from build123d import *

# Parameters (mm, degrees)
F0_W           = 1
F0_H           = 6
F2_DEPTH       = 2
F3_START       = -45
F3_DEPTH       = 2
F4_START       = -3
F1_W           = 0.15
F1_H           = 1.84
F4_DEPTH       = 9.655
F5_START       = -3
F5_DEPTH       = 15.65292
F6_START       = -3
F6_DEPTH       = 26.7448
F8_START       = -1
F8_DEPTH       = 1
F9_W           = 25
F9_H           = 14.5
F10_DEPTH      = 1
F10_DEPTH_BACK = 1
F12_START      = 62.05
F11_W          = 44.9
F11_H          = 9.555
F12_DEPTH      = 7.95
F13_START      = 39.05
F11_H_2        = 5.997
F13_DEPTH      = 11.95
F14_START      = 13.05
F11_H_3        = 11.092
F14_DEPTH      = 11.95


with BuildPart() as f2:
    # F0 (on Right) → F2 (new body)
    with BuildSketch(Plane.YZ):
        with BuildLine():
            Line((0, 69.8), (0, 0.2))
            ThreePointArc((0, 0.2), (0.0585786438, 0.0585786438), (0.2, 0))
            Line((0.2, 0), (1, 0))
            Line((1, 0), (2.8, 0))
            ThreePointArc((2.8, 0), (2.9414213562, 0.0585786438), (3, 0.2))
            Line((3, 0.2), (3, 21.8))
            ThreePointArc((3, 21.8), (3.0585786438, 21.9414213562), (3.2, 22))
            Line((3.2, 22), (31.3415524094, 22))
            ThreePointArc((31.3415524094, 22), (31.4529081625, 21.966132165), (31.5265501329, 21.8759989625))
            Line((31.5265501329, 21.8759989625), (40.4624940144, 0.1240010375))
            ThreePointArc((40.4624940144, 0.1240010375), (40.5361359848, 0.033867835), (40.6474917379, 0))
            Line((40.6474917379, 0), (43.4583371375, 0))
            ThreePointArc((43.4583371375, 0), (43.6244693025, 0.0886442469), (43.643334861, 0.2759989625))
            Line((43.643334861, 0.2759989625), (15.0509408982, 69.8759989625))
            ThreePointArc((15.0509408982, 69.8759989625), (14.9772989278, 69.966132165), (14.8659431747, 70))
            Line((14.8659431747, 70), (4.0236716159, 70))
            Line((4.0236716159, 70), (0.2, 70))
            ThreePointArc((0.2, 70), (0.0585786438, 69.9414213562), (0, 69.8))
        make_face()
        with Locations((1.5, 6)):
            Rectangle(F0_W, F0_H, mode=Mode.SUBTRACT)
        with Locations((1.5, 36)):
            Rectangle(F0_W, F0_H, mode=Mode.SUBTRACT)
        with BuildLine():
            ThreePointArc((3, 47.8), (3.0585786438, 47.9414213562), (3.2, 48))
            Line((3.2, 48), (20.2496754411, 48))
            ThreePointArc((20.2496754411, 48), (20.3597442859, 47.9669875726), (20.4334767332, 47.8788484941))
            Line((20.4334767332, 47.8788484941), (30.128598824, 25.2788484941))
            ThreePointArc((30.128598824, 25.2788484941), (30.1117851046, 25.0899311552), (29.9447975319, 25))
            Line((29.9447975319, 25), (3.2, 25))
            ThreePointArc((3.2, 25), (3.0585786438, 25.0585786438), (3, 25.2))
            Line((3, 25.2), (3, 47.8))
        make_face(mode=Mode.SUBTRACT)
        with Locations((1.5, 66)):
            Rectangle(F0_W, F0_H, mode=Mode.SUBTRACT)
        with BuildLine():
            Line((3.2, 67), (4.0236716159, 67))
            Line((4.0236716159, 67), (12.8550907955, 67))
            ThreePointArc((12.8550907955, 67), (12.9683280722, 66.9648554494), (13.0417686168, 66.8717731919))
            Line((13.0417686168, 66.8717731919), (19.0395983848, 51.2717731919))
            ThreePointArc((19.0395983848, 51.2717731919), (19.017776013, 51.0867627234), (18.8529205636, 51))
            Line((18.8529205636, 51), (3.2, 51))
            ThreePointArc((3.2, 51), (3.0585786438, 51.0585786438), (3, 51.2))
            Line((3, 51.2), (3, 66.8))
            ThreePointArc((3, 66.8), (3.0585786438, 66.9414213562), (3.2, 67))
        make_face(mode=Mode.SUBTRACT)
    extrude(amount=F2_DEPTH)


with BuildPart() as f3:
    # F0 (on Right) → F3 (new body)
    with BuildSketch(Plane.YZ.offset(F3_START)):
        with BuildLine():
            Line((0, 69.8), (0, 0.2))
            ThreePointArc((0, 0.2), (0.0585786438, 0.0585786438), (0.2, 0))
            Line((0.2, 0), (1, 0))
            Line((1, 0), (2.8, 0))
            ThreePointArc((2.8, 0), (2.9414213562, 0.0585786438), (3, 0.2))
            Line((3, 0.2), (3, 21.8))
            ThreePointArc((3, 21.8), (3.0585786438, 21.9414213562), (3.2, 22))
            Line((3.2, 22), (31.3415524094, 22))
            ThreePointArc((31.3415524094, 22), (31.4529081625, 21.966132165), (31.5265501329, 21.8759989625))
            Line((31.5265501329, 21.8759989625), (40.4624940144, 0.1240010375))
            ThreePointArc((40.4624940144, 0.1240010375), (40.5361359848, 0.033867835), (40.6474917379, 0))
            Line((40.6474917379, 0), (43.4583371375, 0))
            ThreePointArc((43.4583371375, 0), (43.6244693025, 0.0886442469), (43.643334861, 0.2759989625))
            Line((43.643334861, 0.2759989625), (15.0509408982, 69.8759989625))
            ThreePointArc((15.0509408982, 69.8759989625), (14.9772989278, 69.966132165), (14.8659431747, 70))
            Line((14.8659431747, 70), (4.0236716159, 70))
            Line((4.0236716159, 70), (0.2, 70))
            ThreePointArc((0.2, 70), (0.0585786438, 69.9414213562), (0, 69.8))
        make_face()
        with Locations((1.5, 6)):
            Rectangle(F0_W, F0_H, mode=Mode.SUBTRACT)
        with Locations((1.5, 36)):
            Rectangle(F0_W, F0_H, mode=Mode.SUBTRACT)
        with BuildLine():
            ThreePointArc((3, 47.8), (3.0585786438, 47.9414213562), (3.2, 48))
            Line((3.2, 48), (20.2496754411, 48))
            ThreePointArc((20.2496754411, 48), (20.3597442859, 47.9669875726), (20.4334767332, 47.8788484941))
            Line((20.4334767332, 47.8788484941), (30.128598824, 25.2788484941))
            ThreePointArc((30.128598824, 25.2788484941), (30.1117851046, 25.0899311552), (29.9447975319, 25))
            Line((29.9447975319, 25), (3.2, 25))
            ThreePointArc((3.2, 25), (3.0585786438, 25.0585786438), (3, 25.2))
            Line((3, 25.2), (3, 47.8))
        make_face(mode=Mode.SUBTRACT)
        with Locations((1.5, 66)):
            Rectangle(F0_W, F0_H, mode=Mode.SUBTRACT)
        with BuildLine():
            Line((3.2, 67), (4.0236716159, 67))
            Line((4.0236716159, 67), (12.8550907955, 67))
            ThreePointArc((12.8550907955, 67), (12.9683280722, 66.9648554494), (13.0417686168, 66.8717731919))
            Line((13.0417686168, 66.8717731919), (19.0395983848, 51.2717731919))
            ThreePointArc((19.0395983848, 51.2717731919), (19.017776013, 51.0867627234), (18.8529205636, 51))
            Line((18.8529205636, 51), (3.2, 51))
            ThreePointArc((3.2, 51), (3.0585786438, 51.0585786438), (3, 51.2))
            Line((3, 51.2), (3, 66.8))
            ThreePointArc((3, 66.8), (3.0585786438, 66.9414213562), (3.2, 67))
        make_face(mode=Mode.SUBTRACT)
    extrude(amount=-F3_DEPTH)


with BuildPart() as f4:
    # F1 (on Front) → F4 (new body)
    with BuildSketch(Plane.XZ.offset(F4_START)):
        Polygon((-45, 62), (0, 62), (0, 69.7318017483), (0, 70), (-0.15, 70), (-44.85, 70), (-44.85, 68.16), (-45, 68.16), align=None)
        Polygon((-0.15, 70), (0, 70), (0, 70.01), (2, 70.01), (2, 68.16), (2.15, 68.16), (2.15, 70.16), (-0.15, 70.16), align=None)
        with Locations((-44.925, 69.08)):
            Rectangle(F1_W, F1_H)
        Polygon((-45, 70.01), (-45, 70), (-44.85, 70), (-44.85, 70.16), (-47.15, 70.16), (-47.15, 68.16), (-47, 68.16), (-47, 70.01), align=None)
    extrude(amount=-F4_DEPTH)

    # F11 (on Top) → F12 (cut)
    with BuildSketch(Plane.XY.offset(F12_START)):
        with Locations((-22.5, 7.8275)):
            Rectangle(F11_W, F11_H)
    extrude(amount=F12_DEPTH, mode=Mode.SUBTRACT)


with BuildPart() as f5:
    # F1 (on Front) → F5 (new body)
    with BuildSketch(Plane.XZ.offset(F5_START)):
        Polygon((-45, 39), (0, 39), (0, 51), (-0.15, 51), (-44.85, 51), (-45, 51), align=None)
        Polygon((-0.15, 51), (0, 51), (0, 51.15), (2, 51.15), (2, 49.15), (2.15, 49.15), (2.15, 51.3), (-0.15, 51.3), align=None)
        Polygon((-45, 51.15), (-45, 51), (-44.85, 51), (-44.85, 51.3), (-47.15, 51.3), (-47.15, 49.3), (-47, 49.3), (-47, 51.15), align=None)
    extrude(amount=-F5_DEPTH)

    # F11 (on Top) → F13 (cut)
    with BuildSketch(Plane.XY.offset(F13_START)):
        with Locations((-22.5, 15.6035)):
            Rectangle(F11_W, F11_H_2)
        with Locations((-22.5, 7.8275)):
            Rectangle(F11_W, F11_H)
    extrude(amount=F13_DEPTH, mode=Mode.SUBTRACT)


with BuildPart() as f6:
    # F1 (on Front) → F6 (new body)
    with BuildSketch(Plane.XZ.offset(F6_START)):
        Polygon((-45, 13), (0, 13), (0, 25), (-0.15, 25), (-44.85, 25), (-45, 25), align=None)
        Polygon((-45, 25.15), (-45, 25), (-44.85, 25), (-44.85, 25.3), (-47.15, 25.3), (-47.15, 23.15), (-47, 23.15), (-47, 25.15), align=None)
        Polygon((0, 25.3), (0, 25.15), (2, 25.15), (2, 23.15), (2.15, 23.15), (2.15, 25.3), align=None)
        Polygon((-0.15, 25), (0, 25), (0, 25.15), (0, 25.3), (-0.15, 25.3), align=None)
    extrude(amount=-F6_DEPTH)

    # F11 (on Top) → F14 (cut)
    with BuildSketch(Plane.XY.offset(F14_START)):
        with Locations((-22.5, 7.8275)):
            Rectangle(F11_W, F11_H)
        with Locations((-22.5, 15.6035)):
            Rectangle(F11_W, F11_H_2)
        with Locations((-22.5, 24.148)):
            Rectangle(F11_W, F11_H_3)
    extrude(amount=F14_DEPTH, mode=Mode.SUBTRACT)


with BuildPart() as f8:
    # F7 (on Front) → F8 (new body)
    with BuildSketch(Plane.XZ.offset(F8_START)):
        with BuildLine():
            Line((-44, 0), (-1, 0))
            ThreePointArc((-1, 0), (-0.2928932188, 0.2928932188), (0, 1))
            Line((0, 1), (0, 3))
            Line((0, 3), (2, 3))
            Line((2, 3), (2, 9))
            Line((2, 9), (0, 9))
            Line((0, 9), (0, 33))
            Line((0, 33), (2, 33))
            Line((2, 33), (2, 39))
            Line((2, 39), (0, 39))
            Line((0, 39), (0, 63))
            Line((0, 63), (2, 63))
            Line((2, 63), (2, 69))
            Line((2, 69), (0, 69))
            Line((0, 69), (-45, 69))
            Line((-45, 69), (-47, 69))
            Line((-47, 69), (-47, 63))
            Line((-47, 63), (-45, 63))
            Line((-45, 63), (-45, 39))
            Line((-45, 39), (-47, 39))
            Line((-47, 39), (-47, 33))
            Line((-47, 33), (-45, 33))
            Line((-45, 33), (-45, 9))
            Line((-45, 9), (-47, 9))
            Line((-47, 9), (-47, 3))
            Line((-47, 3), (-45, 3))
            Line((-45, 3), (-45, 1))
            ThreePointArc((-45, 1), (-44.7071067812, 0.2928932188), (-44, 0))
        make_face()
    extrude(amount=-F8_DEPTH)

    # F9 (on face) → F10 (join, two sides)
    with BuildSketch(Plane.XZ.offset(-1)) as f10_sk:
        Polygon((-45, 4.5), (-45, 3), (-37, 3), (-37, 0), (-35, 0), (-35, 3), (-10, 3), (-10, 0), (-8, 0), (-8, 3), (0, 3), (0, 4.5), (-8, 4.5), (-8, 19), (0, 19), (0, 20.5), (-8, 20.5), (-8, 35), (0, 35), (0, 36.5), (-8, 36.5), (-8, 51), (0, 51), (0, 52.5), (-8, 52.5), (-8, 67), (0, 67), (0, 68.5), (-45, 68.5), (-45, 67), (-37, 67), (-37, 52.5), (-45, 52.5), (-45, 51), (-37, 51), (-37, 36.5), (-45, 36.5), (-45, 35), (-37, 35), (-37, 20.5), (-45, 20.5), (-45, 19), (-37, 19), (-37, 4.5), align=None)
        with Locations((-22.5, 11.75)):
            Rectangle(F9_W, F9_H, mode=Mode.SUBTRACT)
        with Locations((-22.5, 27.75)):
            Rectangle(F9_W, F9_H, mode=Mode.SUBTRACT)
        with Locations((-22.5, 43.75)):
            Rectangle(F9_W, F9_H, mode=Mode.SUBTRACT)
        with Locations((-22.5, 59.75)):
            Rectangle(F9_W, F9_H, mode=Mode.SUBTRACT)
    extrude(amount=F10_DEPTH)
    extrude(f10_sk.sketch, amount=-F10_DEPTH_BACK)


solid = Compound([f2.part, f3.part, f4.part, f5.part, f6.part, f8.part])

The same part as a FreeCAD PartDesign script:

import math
import FreeCAD as App
import Part
import Sketcher

V = App.Vector
Q = App.Units.Quantity


def add_polygon(sketch, points):
    """Adds a closed chain of lines whose ends are joined by coincident constraints."""
    first, n = sketch.GeometryCount, len(points)
    for a, b in zip(points, points[1:] + points[:1]):
        sketch.addGeometry(Part.LineSegment(App.Vector(*a, 0), App.Vector(*b, 0)), False)
    for i in range(n):
        sketch.addConstraint(Sketcher.Constraint("Coincident", first + i, 2, first + (i + 1) % n, 1))

doc = App.newDocument("Part")
body = doc.addObject("PartDesign::Body", "Body")

# Sketch on YZ plane
sketch1 = body.newObject("Sketcher::SketchObject", "Sketch")
sketch1.AttachmentSupport = (doc.getObject("YZ_Plane"), [""])
sketch1.MapMode = "FlatFace"
sketch1.addGeometry(Part.LineSegment(V(0, 69.8, 0), V(0, 0.2, 0)), False)  # 0
sketch1.addGeometry(Part.ArcOfCircle(Part.Circle(V(0.2, 0.2, 0), V(0, 0, 1), 0.2), math.radians(180), math.radians(270)), False)  # 1
sketch1.addGeometry(Part.LineSegment(V(0.2, 0, 0), V(2.8, 0, 0)), False)  # 2
sketch1.addGeometry(Part.ArcOfCircle(Part.Circle(V(2.8, 0.2, 0), V(0, 0, 1), 0.2), math.radians(-90), math.radians(0)), False)  # 3
sketch1.addGeometry(Part.LineSegment(V(3, 0.2, 0), V(3, 21.8, 0)), False)  # 4
sketch1.addGeometry(Part.ArcOfCircle(Part.Circle(V(3.2, 21.8, 0), V(0, 0, 1), 0.2), math.radians(90), math.radians(180)), False)  # 5
sketch1.addGeometry(Part.LineSegment(V(3.2, 22, 0), V(31.34, 22, 0)), False)  # 6
sketch1.addGeometry(Part.ArcOfCircle(Part.Circle(V(31.34, 21.8, 0), V(0, 0, 1), 0.2), math.radians(22), math.radians(90)), False)  # 7
sketch1.addGeometry(Part.LineSegment(V(31.53, 21.88, 0), V(40.46, 0.12, 0)), False)  # 8
sketch1.addGeometry(Part.ArcOfCircle(Part.Circle(V(40.65, 0.2, 0), V(0, 0, 1), 0.2), math.radians(-158), math.radians(-90)), False)  # 9
sketch1.addGeometry(Part.LineSegment(V(40.65, 0, 0), V(43.46, 0, 0)), False)  # 10
sketch1.addGeometry(Part.ArcOfCircle(Part.Circle(V(43.46, 0.2, 0), V(0, 0, 1), 0.2), math.radians(-90), math.radians(22)), False)  # 11
sketch1.addGeometry(Part.LineSegment(V(43.64, 0.28, 0), V(15.05, 69.88, 0)), False)  # 12
sketch1.addGeometry(Part.ArcOfCircle(Part.Circle(V(14.87, 69.8, 0), V(0, 0, 1), 0.2), math.radians(22), math.radians(90)), False)  # 13
sketch1.addGeometry(Part.LineSegment(V(14.87, 70, 0), V(0.2, 70, 0)), False)  # 14
sketch1.addGeometry(Part.ArcOfCircle(Part.Circle(V(0.2, 69.8, 0), V(0, 0, 1), 0.2), math.radians(90), math.radians(180)), False)  # 15
add_polygon(sketch1, [(2, 3), (1, 3), (1, 9), (2, 9)])  # lines 16-19
add_polygon(sketch1, [(2, 33), (1, 33), (1, 39), (2, 39)])  # lines 20-23
add_polygon(sketch1, [(2, 63), (1, 63), (1, 69), (2, 69)])  # lines 24-27
sketch1.addGeometry(Part.ArcOfCircle(Part.Circle(V(3.2, 66.8, 0), V(0, 0, 1), 0.2), math.radians(90), math.radians(180)), False)  # 28
sketch1.addGeometry(Part.LineSegment(V(3.2, 67, 0), V(12.86, 67, 0)), False)  # 29
sketch1.addGeometry(Part.ArcOfCircle(Part.Circle(V(12.86, 66.8, 0), V(0, 0, 1), 0.2), math.radians(21), math.radians(90)), False)  # 30
sketch1.addGeometry(Part.LineSegment(V(13.04, 66.87, 0), V(19.04, 51.27, 0)), False)  # 31
sketch1.addGeometry(Part.ArcOfCircle(Part.Circle(V(18.85, 51.2, 0), V(0, 0, 1), 0.2), math.radians(-90), math.radians(21)), False)  # 32
sketch1.addGeometry(Part.LineSegment(V(18.85, 51, 0), V(3.2, 51, 0)), False)  # 33
sketch1.addGeometry(Part.ArcOfCircle(Part.Circle(V(3.2, 51.2, 0), V(0, 0, 1), 0.2), math.radians(180), math.radians(270)), False)  # 34
sketch1.addGeometry(Part.LineSegment(V(3, 51.2, 0), V(3, 66.8, 0)), False)  # 35
sketch1.addGeometry(Part.LineSegment(V(3, 25.2, 0), V(3, 47.8, 0)), False)  # 36
sketch1.addGeometry(Part.ArcOfCircle(Part.Circle(V(3.2, 47.8, 0), V(0, 0, 1), 0.2), math.radians(90), math.radians(180)), False)  # 37
sketch1.addGeometry(Part.LineSegment(V(3.2, 48, 0), V(20.25, 48, 0)), False)  # 38
sketch1.addGeometry(Part.ArcOfCircle(Part.Circle(V(20.25, 47.8, 0), V(0, 0, 1), 0.2), math.radians(23), math.radians(90)), False)  # 39
sketch1.addGeometry(Part.LineSegment(V(20.43, 47.88, 0), V(30.13, 25.28, 0)), False)  # 40
sketch1.addGeometry(Part.ArcOfCircle(Part.Circle(V(29.94, 25.2, 0), V(0, 0, 1), 0.2), math.radians(-90), math.radians(23)), False)  # 41
sketch1.addGeometry(Part.LineSegment(V(29.94, 25, 0), V(3.2, 25, 0)), False)  # 42
sketch1.addGeometry(Part.ArcOfCircle(Part.Circle(V(3.2, 25.2, 0), V(0, 0, 1), 0.2), math.radians(180), math.radians(270)), False)  # 43
sketch1.addConstraint([
    Sketcher.Constraint("Tangent", 0, 2, 1, 1),
    Sketcher.Constraint("Tangent", 1, 2, 2, 1),
    Sketcher.Constraint("Tangent", 2, 2, 3, 1),
    Sketcher.Constraint("Tangent", 3, 2, 4, 1),
    Sketcher.Constraint("Tangent", 4, 2, 5, 2),
    Sketcher.Constraint("Tangent", 5, 1, 6, 1),
    Sketcher.Constraint("Tangent", 6, 2, 7, 2),
    Sketcher.Constraint("Tangent", 7, 1, 8, 1),
    Sketcher.Constraint("Tangent", 8, 2, 9, 1),
    Sketcher.Constraint("Tangent", 9, 2, 10, 1),
    Sketcher.Constraint("Tangent", 10, 2, 11, 1),
    Sketcher.Constraint("Tangent", 11, 2, 12, 1),
    Sketcher.Constraint("Tangent", 12, 2, 13, 1),
    Sketcher.Constraint("Tangent", 13, 2, 14, 1),
    Sketcher.Constraint("Tangent", 14, 2, 15, 1),
    Sketcher.Constraint("Tangent", 15, 2, 0, 1),
    Sketcher.Constraint("Tangent", 28, 1, 29, 1),
    Sketcher.Constraint("Tangent", 29, 2, 30, 2),
    Sketcher.Constraint("Tangent", 30, 1, 31, 1),
    Sketcher.Constraint("Tangent", 31, 2, 32, 2),
    Sketcher.Constraint("Tangent", 32, 1, 33, 1),
    Sketcher.Constraint("Tangent", 33, 2, 34, 2),
    Sketcher.Constraint("Tangent", 34, 1, 35, 1),
    Sketcher.Constraint("Tangent", 35, 2, 28, 2),
    Sketcher.Constraint("Tangent", 36, 2, 37, 2),
    Sketcher.Constraint("Tangent", 37, 1, 38, 1),
    Sketcher.Constraint("Tangent", 38, 2, 39, 2),
    Sketcher.Constraint("Tangent", 39, 1, 40, 1),
    Sketcher.Constraint("Tangent", 40, 2, 41, 2),
    Sketcher.Constraint("Tangent", 41, 1, 42, 1),
    Sketcher.Constraint("Tangent", 42, 2, 43, 2),
    Sketcher.Constraint("Tangent", 43, 1, 36, 1),
    Sketcher.Constraint("Vertical", 0),
    Sketcher.Constraint("Horizontal", 2),
    Sketcher.Constraint("Vertical", 4),
    Sketcher.Constraint("Horizontal", 6),
    Sketcher.Constraint("Horizontal", 10),
    Sketcher.Constraint("Horizontal", 14),
    Sketcher.Constraint("Horizontal", 16),
    Sketcher.Constraint("Vertical", 17),
    Sketcher.Constraint("Horizontal", 18),
    Sketcher.Constraint("Vertical", 19),
    Sketcher.Constraint("Horizontal", 20),
    Sketcher.Constraint("Vertical", 21),
    Sketcher.Constraint("Horizontal", 22),
    Sketcher.Constraint("Vertical", 23),
    Sketcher.Constraint("Horizontal", 24),
    Sketcher.Constraint("Vertical", 25),
    Sketcher.Constraint("Horizontal", 26),
    Sketcher.Constraint("Vertical", 27),
    Sketcher.Constraint("Horizontal", 29),
    Sketcher.Constraint("Horizontal", 33),
    Sketcher.Constraint("Vertical", 35),
    Sketcher.Constraint("Vertical", 36),
    Sketcher.Constraint("Horizontal", 38),
    Sketcher.Constraint("Horizontal", 42),
    Sketcher.Constraint("Equal", 1, 3),
    Sketcher.Constraint("Equal", 3, 5),
    Sketcher.Constraint("Equal", 5, 7),
    Sketcher.Constraint("Equal", 7, 9),
    Sketcher.Constraint("Equal", 9, 11),
    Sketcher.Constraint("Equal", 11, 13),
    Sketcher.Constraint("Equal", 13, 15),
    Sketcher.Constraint("Equal", 15, 28),
    Sketcher.Constraint("Equal", 28, 30),
    Sketcher.Constraint("Equal", 30, 32),
    Sketcher.Constraint("Equal", 32, 34),
    Sketcher.Constraint("Equal", 34, 37),
    Sketcher.Constraint("Equal", 37, 39),
    Sketcher.Constraint("Equal", 39, 41),
    Sketcher.Constraint("Equal", 41, 43),
    Sketcher.Constraint("PointOnObject", 0, 2, -2),
    Sketcher.Constraint("PointOnObject", 1, 2, -1),
    Sketcher.Constraint("PointOnObject", 9, 2, -1),
    Sketcher.Constraint("Parallel", 8, 12),
    Sketcher.Constraint("Vertical", 5, 3, 28, 3),
    Sketcher.Constraint("Vertical", 34, 3, 37, 3),
    Sketcher.Constraint("Vertical", 17, 2, 20, 2),
    Sketcher.Constraint("Vertical", 19, 2, 22, 2),
    Sketcher.Constraint("Vertical", 21, 2, 24, 2),
    Sketcher.Constraint("Vertical", 23, 2, 26, 2),
    Sketcher.Constraint("Equal", 19, 21),
    Sketcher.Constraint("Equal", 23, 25),
    Sketcher.Constraint("Radius", 1, Q("0.2 mm")),
    Sketcher.Constraint("DistanceX", 16, 2, 16, 1, Q("1 mm")),
    Sketcher.Constraint("DistanceY", 17, 1, 17, 2, Q("6 mm")),
    Sketcher.Constraint("DistanceX", 2, 1, 2, 2, Q("2.6 mm")),
    Sketcher.Constraint("DistanceY", 0, 2, 0, 1, Q("69.6 mm")),
    Sketcher.Constraint("DistanceY", 4, 1, 4, 2, Q("21.6 mm")),
    Sketcher.Constraint("DistanceY", 35, 1, 35, 2, Q("15.6 mm")),
    Sketcher.Constraint("DistanceY", 36, 1, 36, 2, Q("22.6 mm")),
    Sketcher.Constraint("DistanceX", -1, 1, 16, 2, Q("1 mm")),
    Sketcher.Constraint("DistanceY", -1, 1, 16, 2, Q("3 mm")),
    Sketcher.Constraint("DistanceY", -1, 1, 20, 2, Q("33 mm")),
    Sketcher.Constraint("DistanceY", -1, 1, 24, 2, Q("63 mm")),
    Sketcher.Constraint("DistanceY", -1, 1, 28, 1, Q("67 mm")),
    Sketcher.Constraint("DistanceY", -1, 1, 37, 1, Q("48 mm")),
    Sketcher.Constraint("DistanceY", 7, 3, 7, 1, Q("0.075999 mm")),
    Sketcher.Constraint("DistanceX", 29, 1, 29, 2, Q("9.655091 mm")),
    Sketcher.Constraint("DistanceX", 33, 2, 33, 1, Q("15.652921 mm")),
    Sketcher.Constraint("DistanceX", -1, 1, 40, 2, Q("30.128599 mm")),
    Sketcher.Constraint("DistanceX", 6, 1, 6, 2, Q("28.141552 mm")),
    Sketcher.Constraint("DistanceX", 10, 1, 10, 2, Q("2.810845 mm")),
    Sketcher.Constraint("DistanceX", 38, 1, 38, 2, Q("17.049675 mm")),
])
pad1 = body.newObject("PartDesign::Pad", "Pad")
pad1.Profile = sketch1
pad1.Length = 2
body2 = doc.addObject("PartDesign::Body", "Body001")

# Sketch on YZ plane
sketch2 = body2.newObject("Sketcher::SketchObject", "Sketch001")
sketch2.AttachmentSupport = (doc.getObject("YZ_Plane001"), [""])
sketch2.MapMode = "FlatFace"
sketch2.AttachmentOffset = App.Placement(V(0, 0, -45), App.Rotation())
sketch2.addGeometry(Part.LineSegment(V(0, 69.8, 0), V(0, 0.2, 0)), False)  # 0
sketch2.addGeometry(Part.ArcOfCircle(Part.Circle(V(0.2, 0.2, 0), V(0, 0, 1), 0.2), math.radians(180), math.radians(270)), False)  # 1
sketch2.addGeometry(Part.LineSegment(V(0.2, 0, 0), V(2.8, 0, 0)), False)  # 2
sketch2.addGeometry(Part.ArcOfCircle(Part.Circle(V(2.8, 0.2, 0), V(0, 0, 1), 0.2), math.radians(-90), math.radians(0)), False)  # 3
sketch2.addGeometry(Part.LineSegment(V(3, 0.2, 0), V(3, 21.8, 0)), False)  # 4
sketch2.addGeometry(Part.ArcOfCircle(Part.Circle(V(3.2, 21.8, 0), V(0, 0, 1), 0.2), math.radians(90), math.radians(180)), False)  # 5
sketch2.addGeometry(Part.LineSegment(V(3.2, 22, 0), V(31.34, 22, 0)), False)  # 6
sketch2.addGeometry(Part.ArcOfCircle(Part.Circle(V(31.34, 21.8, 0), V(0, 0, 1), 0.2), math.radians(22), math.radians(90)), False)  # 7
sketch2.addGeometry(Part.LineSegment(V(31.53, 21.88, 0), V(40.46, 0.12, 0)), False)  # 8
sketch2.addGeometry(Part.ArcOfCircle(Part.Circle(V(40.65, 0.2, 0), V(0, 0, 1), 0.2), math.radians(-158), math.radians(-90)), False)  # 9
sketch2.addGeometry(Part.LineSegment(V(40.65, 0, 0), V(43.46, 0, 0)), False)  # 10
sketch2.addGeometry(Part.ArcOfCircle(Part.Circle(V(43.46, 0.2, 0), V(0, 0, 1), 0.2), math.radians(-90), math.radians(22)), False)  # 11
sketch2.addGeometry(Part.LineSegment(V(43.64, 0.28, 0), V(15.05, 69.88, 0)), False)  # 12
sketch2.addGeometry(Part.ArcOfCircle(Part.Circle(V(14.87, 69.8, 0), V(0, 0, 1), 0.2), math.radians(22), math.radians(90)), False)  # 13
sketch2.addGeometry(Part.LineSegment(V(14.87, 70, 0), V(0.2, 70, 0)), False)  # 14
sketch2.addGeometry(Part.ArcOfCircle(Part.Circle(V(0.2, 69.8, 0), V(0, 0, 1), 0.2), math.radians(90), math.radians(180)), False)  # 15
add_polygon(sketch2, [(2, 3), (1, 3), (1, 9), (2, 9)])  # lines 16-19
add_polygon(sketch2, [(2, 33), (1, 33), (1, 39), (2, 39)])  # lines 20-23
add_polygon(sketch2, [(2, 63), (1, 63), (1, 69), (2, 69)])  # lines 24-27
sketch2.addGeometry(Part.ArcOfCircle(Part.Circle(V(3.2, 66.8, 0), V(0, 0, 1), 0.2), math.radians(90), math.radians(180)), False)  # 28
sketch2.addGeometry(Part.LineSegment(V(3.2, 67, 0), V(12.86, 67, 0)), False)  # 29
sketch2.addGeometry(Part.ArcOfCircle(Part.Circle(V(12.86, 66.8, 0), V(0, 0, 1), 0.2), math.radians(21), math.radians(90)), False)  # 30
sketch2.addGeometry(Part.LineSegment(V(13.04, 66.87, 0), V(19.04, 51.27, 0)), False)  # 31
sketch2.addGeometry(Part.ArcOfCircle(Part.Circle(V(18.85, 51.2, 0), V(0, 0, 1), 0.2), math.radians(-90), math.radians(21)), False)  # 32
sketch2.addGeometry(Part.LineSegment(V(18.85, 51, 0), V(3.2, 51, 0)), False)  # 33
sketch2.addGeometry(Part.ArcOfCircle(Part.Circle(V(3.2, 51.2, 0), V(0, 0, 1), 0.2), math.radians(180), math.radians(270)), False)  # 34
sketch2.addGeometry(Part.LineSegment(V(3, 51.2, 0), V(3, 66.8, 0)), False)  # 35
sketch2.addGeometry(Part.LineSegment(V(3, 25.2, 0), V(3, 47.8, 0)), False)  # 36
sketch2.addGeometry(Part.ArcOfCircle(Part.Circle(V(3.2, 47.8, 0), V(0, 0, 1), 0.2), math.radians(90), math.radians(180)), False)  # 37
sketch2.addGeometry(Part.LineSegment(V(3.2, 48, 0), V(20.25, 48, 0)), False)  # 38
sketch2.addGeometry(Part.ArcOfCircle(Part.Circle(V(20.25, 47.8, 0), V(0, 0, 1), 0.2), math.radians(23), math.radians(90)), False)  # 39
sketch2.addGeometry(Part.LineSegment(V(20.43, 47.88, 0), V(30.13, 25.28, 0)), False)  # 40
sketch2.addGeometry(Part.ArcOfCircle(Part.Circle(V(29.94, 25.2, 0), V(0, 0, 1), 0.2), math.radians(-90), math.radians(23)), False)  # 41
sketch2.addGeometry(Part.LineSegment(V(29.94, 25, 0), V(3.2, 25, 0)), False)  # 42
sketch2.addGeometry(Part.ArcOfCircle(Part.Circle(V(3.2, 25.2, 0), V(0, 0, 1), 0.2), math.radians(180), math.radians(270)), False)  # 43
sketch2.addConstraint([
    Sketcher.Constraint("Tangent", 0, 2, 1, 1),
    Sketcher.Constraint("Tangent", 1, 2, 2, 1),
    Sketcher.Constraint("Tangent", 2, 2, 3, 1),
    Sketcher.Constraint("Tangent", 3, 2, 4, 1),
    Sketcher.Constraint("Tangent", 4, 2, 5, 2),
    Sketcher.Constraint("Tangent", 5, 1, 6, 1),
    Sketcher.Constraint("Tangent", 6, 2, 7, 2),
    Sketcher.Constraint("Tangent", 7, 1, 8, 1),
    Sketcher.Constraint("Tangent", 8, 2, 9, 1),
    Sketcher.Constraint("Tangent", 9, 2, 10, 1),
    Sketcher.Constraint("Tangent", 10, 2, 11, 1),
    Sketcher.Constraint("Tangent", 11, 2, 12, 1),
    Sketcher.Constraint("Tangent", 12, 2, 13, 1),
    Sketcher.Constraint("Tangent", 13, 2, 14, 1),
    Sketcher.Constraint("Tangent", 14, 2, 15, 1),
    Sketcher.Constraint("Tangent", 15, 2, 0, 1),
    Sketcher.Constraint("Tangent", 28, 1, 29, 1),
    Sketcher.Constraint("Tangent", 29, 2, 30, 2),
    Sketcher.Constraint("Tangent", 30, 1, 31, 1),
    Sketcher.Constraint("Tangent", 31, 2, 32, 2),
    Sketcher.Constraint("Tangent", 32, 1, 33, 1),
    Sketcher.Constraint("Tangent", 33, 2, 34, 2),
    Sketcher.Constraint("Tangent", 34, 1, 35, 1),
    Sketcher.Constraint("Tangent", 35, 2, 28, 2),
    Sketcher.Constraint("Tangent", 36, 2, 37, 2),
    Sketcher.Constraint("Tangent", 37, 1, 38, 1),
    Sketcher.Constraint("Tangent", 38, 2, 39, 2),
    Sketcher.Constraint("Tangent", 39, 1, 40, 1),
    Sketcher.Constraint("Tangent", 40, 2, 41, 2),
    Sketcher.Constraint("Tangent", 41, 1, 42, 1),
    Sketcher.Constraint("Tangent", 42, 2, 43, 2),
    Sketcher.Constraint("Tangent", 43, 1, 36, 1),
    Sketcher.Constraint("Vertical", 0),
    Sketcher.Constraint("Horizontal", 2),
    Sketcher.Constraint("Vertical", 4),
    Sketcher.Constraint("Horizontal", 6),
    Sketcher.Constraint("Horizontal", 10),
    Sketcher.Constraint("Horizontal", 14),
    Sketcher.Constraint("Horizontal", 16),
    Sketcher.Constraint("Vertical", 17),
    Sketcher.Constraint("Horizontal", 18),
    Sketcher.Constraint("Vertical", 19),
    Sketcher.Constraint("Horizontal", 20),
    Sketcher.Constraint("Vertical", 21),
    Sketcher.Constraint("Horizontal", 22),
    Sketcher.Constraint("Vertical", 23),
    Sketcher.Constraint("Horizontal", 24),
    Sketcher.Constraint("Vertical", 25),
    Sketcher.Constraint("Horizontal", 26),
    Sketcher.Constraint("Vertical", 27),
    Sketcher.Constraint("Horizontal", 29),
    Sketcher.Constraint("Horizontal", 33),
    Sketcher.Constraint("Vertical", 35),
    Sketcher.Constraint("Vertical", 36),
    Sketcher.Constraint("Horizontal", 38),
    Sketcher.Constraint("Horizontal", 42),
    Sketcher.Constraint("Equal", 1, 3),
    Sketcher.Constraint("Equal", 3, 5),
    Sketcher.Constraint("Equal", 5, 7),
    Sketcher.Constraint("Equal", 7, 9),
    Sketcher.Constraint("Equal", 9, 11),
    Sketcher.Constraint("Equal", 11, 13),
    Sketcher.Constraint("Equal", 13, 15),
    Sketcher.Constraint("Equal", 15, 28),
    Sketcher.Constraint("Equal", 28, 30),
    Sketcher.Constraint("Equal", 30, 32),
    Sketcher.Constraint("Equal", 32, 34),
    Sketcher.Constraint("Equal", 34, 37),
    Sketcher.Constraint("Equal", 37, 39),
    Sketcher.Constraint("Equal", 39, 41),
    Sketcher.Constraint("Equal", 41, 43),
    Sketcher.Constraint("PointOnObject", 0, 2, -2),
    Sketcher.Constraint("PointOnObject", 1, 2, -1),
    Sketcher.Constraint("PointOnObject", 9, 2, -1),
    Sketcher.Constraint("Parallel", 8, 12),
    Sketcher.Constraint("Vertical", 5, 3, 28, 3),
    Sketcher.Constraint("Vertical", 34, 3, 37, 3),
    Sketcher.Constraint("Vertical", 17, 2, 20, 2),
    Sketcher.Constraint("Vertical", 19, 2, 22, 2),
    Sketcher.Constraint("Vertical", 21, 2, 24, 2),
    Sketcher.Constraint("Vertical", 23, 2, 26, 2),
    Sketcher.Constraint("Equal", 19, 21),
    Sketcher.Constraint("Equal", 23, 25),
    Sketcher.Constraint("Radius", 1, Q("0.2 mm")),
    Sketcher.Constraint("DistanceX", 16, 2, 16, 1, Q("1 mm")),
    Sketcher.Constraint("DistanceY", 17, 1, 17, 2, Q("6 mm")),
    Sketcher.Constraint("DistanceX", 2, 1, 2, 2, Q("2.6 mm")),
    Sketcher.Constraint("DistanceY", 0, 2, 0, 1, Q("69.6 mm")),
    Sketcher.Constraint("DistanceY", 4, 1, 4, 2, Q("21.6 mm")),
    Sketcher.Constraint("DistanceY", 35, 1, 35, 2, Q("15.6 mm")),
    Sketcher.Constraint("DistanceY", 36, 1, 36, 2, Q("22.6 mm")),
    Sketcher.Constraint("DistanceX", -1, 1, 16, 2, Q("1 mm")),
    Sketcher.Constraint("DistanceY", -1, 1, 16, 2, Q("3 mm")),
    Sketcher.Constraint("DistanceY", -1, 1, 20, 2, Q("33 mm")),
    Sketcher.Constraint("DistanceY", -1, 1, 24, 2, Q("63 mm")),
    Sketcher.Constraint("DistanceY", -1, 1, 28, 1, Q("67 mm")),
    Sketcher.Constraint("DistanceY", -1, 1, 37, 1, Q("48 mm")),
    Sketcher.Constraint("DistanceY", 7, 3, 7, 1, Q("0.075999 mm")),
    Sketcher.Constraint("DistanceX", 29, 1, 29, 2, Q("9.655091 mm")),
    Sketcher.Constraint("DistanceX", 33, 2, 33, 1, Q("15.652921 mm")),
    Sketcher.Constraint("DistanceX", -1, 1, 40, 2, Q("30.128599 mm")),
    Sketcher.Constraint("DistanceX", 6, 1, 6, 2, Q("28.141552 mm")),
    Sketcher.Constraint("DistanceX", 10, 1, 10, 2, Q("2.810845 mm")),
    Sketcher.Constraint("DistanceX", 38, 1, 38, 2, Q("17.049675 mm")),
])
pad2 = body2.newObject("PartDesign::Pad", "Pad001")
pad2.Profile = sketch2
pad2.Length = 2
pad2.Reversed = True
body3 = doc.addObject("PartDesign::Body", "Body002")

# Sketch on XZ plane
sketch3 = body3.newObject("Sketcher::SketchObject", "Sketch002")
sketch3.AttachmentSupport = (doc.getObject("XZ_Plane002"), [""])
sketch3.MapMode = "FlatFace"
sketch3.AttachmentOffset = App.Placement(V(0, 0, -3), App.Rotation())
add_polygon(sketch3, [(-45, 62), (0, 62), (0, 70.01), (2, 70.01), (2, 68.16), (2.15, 68.16), (2.15, 70.16), (-0.15, 70.16), (-0.15, 70), (-44.85, 70), (-44.85, 70.16), (-47.15, 70.16), (-47.15, 68.16), (-47, 68.16), (-47, 70.01), (-45, 70.01)])  # lines 0-15
sketch3.addConstraint([
    Sketcher.Constraint("Horizontal", 0),
    Sketcher.Constraint("Vertical", 1),
    Sketcher.Constraint("Horizontal", 2),
    Sketcher.Constraint("Vertical", 3),
    Sketcher.Constraint("Horizontal", 4),
    Sketcher.Constraint("Vertical", 5),
    Sketcher.Constraint("Horizontal", 6),
    Sketcher.Constraint("Vertical", 7),
    Sketcher.Constraint("Horizontal", 8),
    Sketcher.Constraint("Vertical", 9),
    Sketcher.Constraint("Horizontal", 10),
    Sketcher.Constraint("Vertical", 11),
    Sketcher.Constraint("Horizontal", 12),
    Sketcher.Constraint("Vertical", 13),
    Sketcher.Constraint("Horizontal", 14),
    Sketcher.Constraint("Vertical", 15),
    Sketcher.Constraint("PointOnObject", 0, 2, -2),
    Sketcher.Constraint("Horizontal", 6, 2, 9, 2),
    Sketcher.Constraint("Horizontal", 4, 2, 11, 2),
    Sketcher.Constraint("Horizontal", 2, 2, 13, 2),
    Sketcher.Constraint("Equal", 6, 10),
    Sketcher.Constraint("Equal", 4, 12),
    Sketcher.Constraint("Equal", 2, 14),
    Sketcher.Constraint("Equal", 14, 5),
    Sketcher.Constraint("DistanceX", 0, 1, 0, 2, Q("45 mm")),
    Sketcher.Constraint("DistanceX", 2, 1, 2, 2, Q("2 mm")),
    Sketcher.Constraint("DistanceX", 6, 2, 6, 1, Q("2.3 mm")),
    Sketcher.Constraint("DistanceX", 8, 2, 8, 1, Q("44.7 mm")),
    Sketcher.Constraint("DistanceY", -1, 1, 0, 2, Q("62 mm")),
    Sketcher.Constraint("DistanceY", -1, 1, 7, 2, Q("70 mm")),
    Sketcher.Constraint("DistanceY", 1, 1, 1, 2, Q("8.01 mm")),
    Sketcher.Constraint("DistanceY", 3, 2, 3, 1, Q("1.85 mm")),
])
pad3 = body3.newObject("PartDesign::Pad", "Pad002")
pad3.Profile = sketch3
pad3.Length = 9.655
pad3.Reversed = True

# Sketch on XY plane
sketch4 = body3.newObject("Sketcher::SketchObject", "Sketch003")
sketch4.AttachmentSupport = (doc.getObject("XY_Plane002"), [""])
sketch4.MapMode = "FlatFace"
sketch4.AttachmentOffset = App.Placement(V(0, 0, 62.05), App.Rotation())
add_polygon(sketch4, [(-45, 13), (-45, 3), (0, 3), (0, 13)])  # lines 0-3
sketch4.addConstraint([
    Sketcher.Constraint("Vertical", 0),
    Sketcher.Constraint("Horizontal", 1),
    Sketcher.Constraint("Vertical", 2),
    Sketcher.Constraint("Horizontal", 3),
    Sketcher.Constraint("DistanceX", 1, 1, 1, 2, Q("44.9 mm")),
    Sketcher.Constraint("DistanceY", 0, 2, 0, 1, Q("9.555 mm")),
    Sketcher.Constraint("DistanceX", 0, 2, -1, 1, Q("44.95 mm")),
    Sketcher.Constraint("DistanceY", -1, 1, 0, 2, Q("3.05 mm")),
])
pocket1 = body3.newObject("PartDesign::Pocket", "Pocket")
pocket1.Profile = sketch4
pocket1.Length = 7.95
pocket1.Reversed = True
body4 = doc.addObject("PartDesign::Body", "Body003")

# Sketch on XZ plane
sketch5 = body4.newObject("Sketcher::SketchObject", "Sketch004")
sketch5.AttachmentSupport = (doc.getObject("XZ_Plane003"), [""])
sketch5.MapMode = "FlatFace"
sketch5.AttachmentOffset = App.Placement(V(0, 0, -3), App.Rotation())
add_polygon(sketch5, [(-45, 39), (0, 39), (0, 51.15), (2, 51.15), (2, 49.15), (2.15, 49.15), (2.15, 51.3), (-0.15, 51.3), (-0.15, 51), (-44.85, 51), (-44.85, 51.3), (-47.15, 51.3), (-47.15, 49.3), (-47, 49.3), (-47, 51.15), (-45, 51.15)])  # lines 0-15
sketch5.addConstraint([
    Sketcher.Constraint("Horizontal", 0),
    Sketcher.Constraint("Vertical", 1),
    Sketcher.Constraint("Horizontal", 2),
    Sketcher.Constraint("Vertical", 3),
    Sketcher.Constraint("Horizontal", 4),
    Sketcher.Constraint("Vertical", 5),
    Sketcher.Constraint("Horizontal", 6),
    Sketcher.Constraint("Vertical", 7),
    Sketcher.Constraint("Horizontal", 8),
    Sketcher.Constraint("Vertical", 9),
    Sketcher.Constraint("Horizontal", 10),
    Sketcher.Constraint("Vertical", 11),
    Sketcher.Constraint("Horizontal", 12),
    Sketcher.Constraint("Vertical", 13),
    Sketcher.Constraint("Horizontal", 14),
    Sketcher.Constraint("Vertical", 15),
    Sketcher.Constraint("PointOnObject", 0, 2, -2),
    Sketcher.Constraint("Horizontal", 6, 2, 9, 2),
    Sketcher.Constraint("Horizontal", 2, 2, 13, 2),
    Sketcher.Constraint("Equal", 6, 10),
    Sketcher.Constraint("Equal", 4, 12),
    Sketcher.Constraint("Equal", 2, 14),
    Sketcher.Constraint("Equal", 14, 3),
    Sketcher.Constraint("Equal", 3, 11),
    Sketcher.Constraint("DistanceX", 0, 1, 0, 2, Q("45 mm")),
    Sketcher.Constraint("DistanceX", 2, 1, 2, 2, Q("2 mm")),
    Sketcher.Constraint("DistanceX", 6, 2, 6, 1, Q("2.3 mm")),
    Sketcher.Constraint("DistanceX", 8, 2, 8, 1, Q("44.7 mm")),
    Sketcher.Constraint("DistanceY", 7, 2, 7, 1, Q("0.3 mm")),
    Sketcher.Constraint("DistanceY", -1, 1, 0, 2, Q("39 mm")),
    Sketcher.Constraint("DistanceY", -1, 1, 7, 2, Q("51 mm")),
    Sketcher.Constraint("DistanceY", 1, 1, 1, 2, Q("12.15 mm")),
])
pad4 = body4.newObject("PartDesign::Pad", "Pad003")
pad4.Profile = sketch5
pad4.Length = 15.65292
pad4.Reversed = True

# Sketch on XY plane
sketch6 = body4.newObject("Sketcher::SketchObject", "Sketch005")
sketch6.AttachmentSupport = (doc.getObject("XY_Plane003"), [""])
sketch6.MapMode = "FlatFace"
sketch6.AttachmentOffset = App.Placement(V(0, 0, 39.05), App.Rotation())
add_polygon(sketch6, [(-45, 19), (-45, 3), (0, 3), (0, 19)])  # lines 0-3
sketch6.addConstraint([
    Sketcher.Constraint("Vertical", 0),
    Sketcher.Constraint("Horizontal", 1),
    Sketcher.Constraint("Vertical", 2),
    Sketcher.Constraint("Horizontal", 3),
    Sketcher.Constraint("DistanceX", 1, 1, 1, 2, Q("44.9 mm")),
    Sketcher.Constraint("DistanceY", 0, 2, 0, 1, Q("15.552 mm")),
    Sketcher.Constraint("DistanceX", 0, 2, -1, 1, Q("44.95 mm")),
    Sketcher.Constraint("DistanceY", -1, 1, 0, 2, Q("3.05 mm")),
])
pocket2 = body4.newObject("PartDesign::Pocket", "Pocket001")
pocket2.Profile = sketch6
pocket2.Length = 11.95
pocket2.Reversed = True
body5 = doc.addObject("PartDesign::Body", "Body004")

# Sketch on XZ plane
sketch7 = body5.newObject("Sketcher::SketchObject", "Sketch006")
sketch7.AttachmentSupport = (doc.getObject("XZ_Plane004"), [""])
sketch7.MapMode = "FlatFace"
sketch7.AttachmentOffset = App.Placement(V(0, 0, -3), App.Rotation())
add_polygon(sketch7, [(-45, 13), (0, 13), (0, 25.15), (2, 25.15), (2, 23.15), (2.15, 23.15), (2.15, 25.3), (-0.15, 25.3), (-0.15, 25), (-44.85, 25), (-44.85, 25.3), (-47.15, 25.3), (-47.15, 23.15), (-47, 23.15), (-47, 25.15), (-45, 25.15)])  # lines 0-15
sketch7.addConstraint([
    Sketcher.Constraint("Horizontal", 0),
    Sketcher.Constraint("Vertical", 1),
    Sketcher.Constraint("Horizontal", 2),
    Sketcher.Constraint("Vertical", 3),
    Sketcher.Constraint("Horizontal", 4),
    Sketcher.Constraint("Vertical", 5),
    Sketcher.Constraint("Horizontal", 6),
    Sketcher.Constraint("Vertical", 7),
    Sketcher.Constraint("Horizontal", 8),
    Sketcher.Constraint("Vertical", 9),
    Sketcher.Constraint("Horizontal", 10),
    Sketcher.Constraint("Vertical", 11),
    Sketcher.Constraint("Horizontal", 12),
    Sketcher.Constraint("Vertical", 13),
    Sketcher.Constraint("Horizontal", 14),
    Sketcher.Constraint("Vertical", 15),
    Sketcher.Constraint("PointOnObject", 0, 2, -2),
    Sketcher.Constraint("Horizontal", 6, 2, 9, 2),
    Sketcher.Constraint("Horizontal", 4, 2, 11, 2),
    Sketcher.Constraint("Horizontal", 2, 2, 13, 2),
    Sketcher.Constraint("Equal", 6, 10),
    Sketcher.Constraint("Equal", 4, 12),
    Sketcher.Constraint("Equal", 2, 14),
    Sketcher.Constraint("Equal", 14, 3),
    Sketcher.Constraint("DistanceX", 0, 1, 0, 2, Q("45 mm")),
    Sketcher.Constraint("DistanceX", 2, 1, 2, 2, Q("2 mm")),
    Sketcher.Constraint("DistanceX", 6, 2, 6, 1, Q("2.3 mm")),
    Sketcher.Constraint("DistanceX", 8, 2, 8, 1, Q("44.7 mm")),
    Sketcher.Constraint("DistanceY", 7, 2, 7, 1, Q("0.3 mm")),
    Sketcher.Constraint("DistanceY", -1, 1, 0, 2, Q("13 mm")),
    Sketcher.Constraint("DistanceY", -1, 1, 7, 2, Q("25 mm")),
    Sketcher.Constraint("DistanceY", 1, 1, 1, 2, Q("12.15 mm")),
])
pad5 = body5.newObject("PartDesign::Pad", "Pad004")
pad5.Profile = sketch7
pad5.Length = 26.7448
pad5.Reversed = True

# Sketch on XY plane
sketch8 = body5.newObject("Sketcher::SketchObject", "Sketch007")
sketch8.AttachmentSupport = (doc.getObject("XY_Plane004"), [""])
sketch8.MapMode = "FlatFace"
sketch8.AttachmentOffset = App.Placement(V(0, 0, 13.05), App.Rotation())
add_polygon(sketch8, [(-45, 3), (0, 3), (0, 30), (-45, 30)])  # lines 0-3
sketch8.addConstraint([
    Sketcher.Constraint("Horizontal", 0),
    Sketcher.Constraint("Vertical", 1),
    Sketcher.Constraint("Horizontal", 2),
    Sketcher.Constraint("Vertical", 3),
    Sketcher.Constraint("DistanceX", 0, 1, 0, 2, Q("44.9 mm")),
    Sketcher.Constraint("DistanceY", 1, 1, 1, 2, Q("26.644 mm")),
    Sketcher.Constraint("DistanceX", 0, 2, -1, 1, Q("0.05 mm")),
    Sketcher.Constraint("DistanceY", -1, 1, 0, 2, Q("3.05 mm")),
])
pocket3 = body5.newObject("PartDesign::Pocket", "Pocket002")
pocket3.Profile = sketch8
pocket3.Length = 11.95
pocket3.Reversed = True
body6 = doc.addObject("PartDesign::Body", "Body005")

# Sketch on XZ plane
sketch9 = body6.newObject("Sketcher::SketchObject", "Sketch008")
sketch9.AttachmentSupport = (doc.getObject("XZ_Plane005"), [""])
sketch9.MapMode = "FlatFace"
sketch9.AttachmentOffset = App.Placement(V(0, 0, -1), App.Rotation())
sketch9.addGeometry([
    Part.LineSegment(V(-44, 0, 0), V(-1, 0, 0)),  # 0
    Part.ArcOfCircle(Part.Circle(V(-1, 1, 0), V(0, 0, 1), 1), math.radians(-90), math.radians(0)),  # 1
    Part.LineSegment(V(0, 1, 0), V(0, 3, 0)),  # 2
    Part.LineSegment(V(0, 3, 0), V(2, 3, 0)),  # 3
    Part.LineSegment(V(2, 3, 0), V(2, 9, 0)),  # 4
    Part.LineSegment(V(2, 9, 0), V(0, 9, 0)),  # 5
    Part.LineSegment(V(0, 9, 0), V(0, 33, 0)),  # 6
    Part.LineSegment(V(0, 33, 0), V(2, 33, 0)),  # 7
    Part.LineSegment(V(2, 33, 0), V(2, 39, 0)),  # 8
    Part.LineSegment(V(2, 39, 0), V(0, 39, 0)),  # 9
    Part.LineSegment(V(0, 39, 0), V(0, 63, 0)),  # 10
    Part.LineSegment(V(0, 63, 0), V(2, 63, 0)),  # 11
    Part.LineSegment(V(2, 63, 0), V(2, 69, 0)),  # 12
    Part.LineSegment(V(2, 69, 0), V(-47, 69, 0)),  # 13
    Part.LineSegment(V(-47, 69, 0), V(-47, 63, 0)),  # 14
    Part.LineSegment(V(-47, 63, 0), V(-45, 63, 0)),  # 15
    Part.LineSegment(V(-45, 63, 0), V(-45, 39, 0)),  # 16
    Part.LineSegment(V(-45, 39, 0), V(-47, 39, 0)),  # 17
    Part.LineSegment(V(-47, 39, 0), V(-47, 33, 0)),  # 18
    Part.LineSegment(V(-47, 33, 0), V(-45, 33, 0)),  # 19
    Part.LineSegment(V(-45, 33, 0), V(-45, 9, 0)),  # 20
    Part.LineSegment(V(-45, 9, 0), V(-47, 9, 0)),  # 21
    Part.LineSegment(V(-47, 9, 0), V(-47, 3, 0)),  # 22
    Part.LineSegment(V(-47, 3, 0), V(-45, 3, 0)),  # 23
    Part.LineSegment(V(-45, 3, 0), V(-45, 1, 0)),  # 24
    Part.ArcOfCircle(Part.Circle(V(-44, 1, 0), V(0, 0, 1), 1), math.radians(180), math.radians(270)),  # 25
], False)
sketch9.addConstraint([
    Sketcher.Constraint("Tangent", 0, 2, 1, 1),
    Sketcher.Constraint("Tangent", 1, 2, 2, 1),
    Sketcher.Constraint("Coincident", 2, 2, 3, 1),
    Sketcher.Constraint("Coincident", 3, 2, 4, 1),
    Sketcher.Constraint("Coincident", 4, 2, 5, 1),
    Sketcher.Constraint("Coincident", 5, 2, 6, 1),
    Sketcher.Constraint("Coincident", 6, 2, 7, 1),
    Sketcher.Constraint("Coincident", 7, 2, 8, 1),
    Sketcher.Constraint("Coincident", 8, 2, 9, 1),
    Sketcher.Constraint("Coincident", 9, 2, 10, 1),
    Sketcher.Constraint("Coincident", 10, 2, 11, 1),
    Sketcher.Constraint("Coincident", 11, 2, 12, 1),
    Sketcher.Constraint("Coincident", 12, 2, 13, 1),
    Sketcher.Constraint("Coincident", 13, 2, 14, 1),
    Sketcher.Constraint("Coincident", 14, 2, 15, 1),
    Sketcher.Constraint("Coincident", 15, 2, 16, 1),
    Sketcher.Constraint("Coincident", 16, 2, 17, 1),
    Sketcher.Constraint("Coincident", 17, 2, 18, 1),
    Sketcher.Constraint("Coincident", 18, 2, 19, 1),
    Sketcher.Constraint("Coincident", 19, 2, 20, 1),
    Sketcher.Constraint("Coincident", 20, 2, 21, 1),
    Sketcher.Constraint("Coincident", 21, 2, 22, 1),
    Sketcher.Constraint("Coincident", 22, 2, 23, 1),
    Sketcher.Constraint("Coincident", 23, 2, 24, 1),
    Sketcher.Constraint("Tangent", 24, 2, 25, 1),
    Sketcher.Constraint("Tangent", 25, 2, 0, 1),
    Sketcher.Constraint("Horizontal", 0),
    Sketcher.Constraint("Vertical", 2),
    Sketcher.Constraint("Horizontal", 3),
    Sketcher.Constraint("Vertical", 4),
    Sketcher.Constraint("Horizontal", 5),
    Sketcher.Constraint("Vertical", 6),
    Sketcher.Constraint("Horizontal", 7),
    Sketcher.Constraint("Vertical", 8),
    Sketcher.Constraint("Horizontal", 9),
    Sketcher.Constraint("Vertical", 10),
    Sketcher.Constraint("Horizontal", 11),
    Sketcher.Constraint("Vertical", 12),
    Sketcher.Constraint("Horizontal", 13),
    Sketcher.Constraint("Vertical", 14),
    Sketcher.Constraint("Horizontal", 15),
    Sketcher.Constraint("Vertical", 16),
    Sketcher.Constraint("Horizontal", 17),
    Sketcher.Constraint("Vertical", 18),
    Sketcher.Constraint("Horizontal", 19),
    Sketcher.Constraint("Vertical", 20),
    Sketcher.Constraint("Horizontal", 21),
    Sketcher.Constraint("Vertical", 22),
    Sketcher.Constraint("Horizontal", 23),
    Sketcher.Constraint("Vertical", 24),
    Sketcher.Constraint("Equal", 1, 25),
    Sketcher.Constraint("PointOnObject", 0, 2, -1),
    Sketcher.Constraint("PointOnObject", 1, 2, -2),
    Sketcher.Constraint("PointOnObject", 5, 2, -2),
    Sketcher.Constraint("PointOnObject", 9, 2, -2),
    Sketcher.Constraint("Horizontal", 11, 2, 14, 2),
    Sketcher.Constraint("Horizontal", 9, 2, 16, 2),
    Sketcher.Constraint("Horizontal", 7, 2, 18, 2),
    Sketcher.Constraint("Horizontal", 5, 2, 20, 2),
    Sketcher.Constraint("Horizontal", 3, 2, 22, 2),
    Sketcher.Constraint("Vertical", 4, 2, 7, 2),
    Sketcher.Constraint("Vertical", 8, 2, 11, 2),
    Sketcher.Constraint("Vertical", 14, 2, 17, 2),
    Sketcher.Constraint("Vertical", 16, 2, 19, 2),
    Sketcher.Constraint("Vertical", 18, 2, 21, 2),
    Sketcher.Constraint("Vertical", 20, 2, 23, 2),
    Sketcher.Constraint("Equal", 11, 15),
    Sketcher.Constraint("Equal", 23, 2),
    Sketcher.Constraint("Equal", 4, 8),
    Sketcher.Constraint("Equal", 6, 10),
    Sketcher.Constraint("Equal", 8, 12),
    Sketcher.Constraint("Radius", 1, Q("1 mm")),
    Sketcher.Constraint("DistanceX", 0, 1, 0, 2, Q("43 mm")),
    Sketcher.Constraint("DistanceX", 3, 1, 3, 2, Q("2 mm")),
    Sketcher.Constraint("DistanceY", 4, 1, 4, 2, Q("6 mm")),
    Sketcher.Constraint("DistanceY", 6, 1, 6, 2, Q("24 mm")),
])
pad6 = body6.newObject("PartDesign::Pad", "Pad005")
pad6.Profile = sketch9
pad6.Length = 1
pad6.Reversed = True

# Sketch on XZ plane
sketch10 = body6.newObject("Sketcher::SketchObject", "Sketch009")
sketch10.AttachmentSupport = (doc.getObject("XZ_Plane005"), [""])
sketch10.MapMode = "FlatFace"
sketch10.AttachmentOffset = App.Placement(V(0, 0, -1), App.Rotation())
add_polygon(sketch10, [(-45, 4.5), (-45, 3), (-37, 3), (-37, 0), (-35, 0), (-35, 3), (-10, 3), (-10, 0), (-8, 0), (-8, 3), (0, 3), (0, 4.5), (-8, 4.5), (-8, 19), (0, 19), (0, 20.5), (-8, 20.5), (-8, 35), (0, 35), (0, 36.5), (-8, 36.5), (-8, 51), (0, 51), (0, 52.5), (-8, 52.5), (-8, 67), (0, 67), (0, 68.5), (-45, 68.5), (-45, 67), (-37, 67), (-37, 52.5), (-45, 52.5), (-45, 51), (-37, 51), (-37, 36.5), (-45, 36.5), (-45, 35), (-37, 35), (-37, 20.5), (-45, 20.5), (-45, 19), (-37, 19), (-37, 4.5)])  # lines 0-43
add_polygon(sketch10, [(-10, 4.5), (-35, 4.5), (-35, 19), (-10, 19)])  # lines 44-47
add_polygon(sketch10, [(-10, 20.5), (-35, 20.5), (-35, 35), (-10, 35)])  # lines 48-51
add_polygon(sketch10, [(-10, 36.5), (-35, 36.5), (-35, 51), (-10, 51)])  # lines 52-55
add_polygon(sketch10, [(-10, 52.5), (-35, 52.5), (-35, 67), (-10, 67)])  # lines 56-59
sketch10.addConstraint([
    Sketcher.Constraint("Vertical", 0),
    Sketcher.Constraint("Horizontal", 1),
    Sketcher.Constraint("Vertical", 2),
    Sketcher.Constraint("Horizontal", 3),
    Sketcher.Constraint("Vertical", 4),
    Sketcher.Constraint("Horizontal", 5),
    Sketcher.Constraint("Vertical", 6),
    Sketcher.Constraint("Horizontal", 7),
    Sketcher.Constraint("Vertical", 8),
    Sketcher.Constraint("Horizontal", 9),
    Sketcher.Constraint("Vertical", 10),
    Sketcher.Constraint("Horizontal", 11),
    Sketcher.Constraint("Vertical", 12),
    Sketcher.Constraint("Horizontal", 13),
    Sketcher.Constraint("Vertical", 14),
    Sketcher.Constraint("Horizontal", 15),
    Sketcher.Constraint("Vertical", 16),
    Sketcher.Constraint("Horizontal", 17),
    Sketcher.Constraint("Vertical", 18),
    Sketcher.Constraint("Horizontal", 19),
    Sketcher.Constraint("Vertical", 20),
    Sketcher.Constraint("Horizontal", 21),
    Sketcher.Constraint("Vertical", 22),
    Sketcher.Constraint("Horizontal", 23),
    Sketcher.Constraint("Vertical", 24),
    Sketcher.Constraint("Horizontal", 25),
    Sketcher.Constraint("Vertical", 26),
    Sketcher.Constraint("Horizontal", 27),
    Sketcher.Constraint("Vertical", 28),
    Sketcher.Constraint("Horizontal", 29),
    Sketcher.Constraint("Vertical", 30),
    Sketcher.Constraint("Horizontal", 31),
    Sketcher.Constraint("Vertical", 32),
    Sketcher.Constraint("Horizontal", 33),
    Sketcher.Constraint("Vertical", 34),
    Sketcher.Constraint("Horizontal", 35),
    Sketcher.Constraint("Vertical", 36),
    Sketcher.Constraint("Horizontal", 37),
    Sketcher.Constraint("Vertical", 38),
    Sketcher.Constraint("Horizontal", 39),
    Sketcher.Constraint("Vertical", 40),
    Sketcher.Constraint("Horizontal", 41),
    Sketcher.Constraint("Vertical", 42),
    Sketcher.Constraint("Horizontal", 43),
    Sketcher.Constraint("Horizontal", 44),
    Sketcher.Constraint("Vertical", 45),
    Sketcher.Constraint("Horizontal", 46),
    Sketcher.Constraint("Vertical", 47),
    Sketcher.Constraint("Horizontal", 48),
    Sketcher.Constraint("Vertical", 49),
    Sketcher.Constraint("Horizontal", 50),
    Sketcher.Constraint("Vertical", 51),
    Sketcher.Constraint("Horizontal", 52),
    Sketcher.Constraint("Vertical", 53),
    Sketcher.Constraint("Horizontal", 54),
    Sketcher.Constraint("Vertical", 55),
    Sketcher.Constraint("Horizontal", 56),
    Sketcher.Constraint("Vertical", 57),
    Sketcher.Constraint("Horizontal", 58),
    Sketcher.Constraint("Vertical", 59),
    Sketcher.Constraint("PointOnObject", 2, 2, -1),
    Sketcher.Constraint("PointOnObject", 6, 2, -1),
    Sketcher.Constraint("PointOnObject", 9, 2, -2),
    Sketcher.Constraint("PointOnObject", 13, 2, -2),
    Sketcher.Constraint("PointOnObject", 17, 2, -2),
    Sketcher.Constraint("PointOnObject", 21, 2, -2),
    Sketcher.Constraint("PointOnObject", 25, 2, -2),
    Sketcher.Constraint("Horizontal", 1, 2, 4, 2),
    Sketcher.Constraint("Horizontal", 5, 2, 8, 2),
    Sketcher.Constraint("Horizontal", 25, 2, 28, 2),
    Sketcher.Constraint("Horizontal", 23, 2, 30, 2),
    Sketcher.Constraint("Horizontal", 21, 2, 32, 2),
    Sketcher.Constraint("Horizontal", 19, 2, 34, 2),
    Sketcher.Constraint("Horizontal", 17, 2, 36, 2),
    Sketcher.Constraint("Horizontal", 15, 2, 38, 2),
    Sketcher.Constraint("Horizontal", 13, 2, 40, 2),
    Sketcher.Constraint("Horizontal", 11, 2, 42, 2),
    Sketcher.Constraint("Horizontal", 43, 2, 44, 2),
    Sketcher.Constraint("Horizontal", 41, 2, 45, 2),
    Sketcher.Constraint("Horizontal", 39, 2, 48, 2),
    Sketcher.Constraint("Horizontal", 37, 2, 49, 2),
    Sketcher.Constraint("Horizontal", 35, 2, 52, 2),
    Sketcher.Constraint("Horizontal", 33, 2, 53, 2),
    Sketcher.Constraint("Horizontal", 31, 2, 56, 2),
    Sketcher.Constraint("Horizontal", 29, 2, 57, 2),
    Sketcher.Constraint("Vertical", 8, 2, 11, 2),
    Sketcher.Constraint("Vertical", 12, 2, 15, 2),
    Sketcher.Constraint("Vertical", 16, 2, 19, 2),
    Sketcher.Constraint("Vertical", 20, 2, 23, 2),
    Sketcher.Constraint("Vertical", 0, 2, 27, 2),
    Sketcher.Constraint("Vertical", 2, 2, 29, 2),
    Sketcher.Constraint("Vertical", 28, 2, 31, 2),
    Sketcher.Constraint("Vertical", 30, 2, 33, 2),
    Sketcher.Constraint("Vertical", 32, 2, 35, 2),
    Sketcher.Constraint("Vertical", 34, 2, 37, 2),
    Sketcher.Constraint("Vertical", 36, 2, 39, 2),
    Sketcher.Constraint("Vertical", 38, 2, 41, 2),
    Sketcher.Constraint("Vertical", 4, 2, 44, 2),
    Sketcher.Constraint("Vertical", 6, 2, 46, 2),
    Sketcher.Constraint("Vertical", 45, 2, 48, 2),
    Sketcher.Constraint("Vertical", 47, 2, 50, 2),
    Sketcher.Constraint("Vertical", 49, 2, 52, 2),
    Sketcher.Constraint("Vertical", 51, 2, 54, 2),
    Sketcher.Constraint("Vertical", 53, 2, 56, 2),
    Sketcher.Constraint("Vertical", 55, 2, 58, 2),
    Sketcher.Constraint("Equal", 3, 7),
    Sketcher.Constraint("Equal", 1, 9),
    Sketcher.Constraint("Equal", 10, 14),
    Sketcher.Constraint("Equal", 12, 16),
    Sketcher.Constraint("Equal", 14, 18),
    Sketcher.Constraint("Equal", 16, 20),
    Sketcher.Constraint("Equal", 18, 22),
    Sketcher.Constraint("Equal", 20, 24),
    Sketcher.Constraint("Equal", 22, 26),
    Sketcher.Constraint("DistanceX", 1, 1, 1, 2, Q("8 mm")),
    Sketcher.Constraint("DistanceX", 3, 1, 3, 2, Q("2 mm")),
    Sketcher.Constraint("DistanceX", 5, 1, 5, 2, Q("25 mm")),
    Sketcher.Constraint("DistanceY", 2, 2, 2, 1, Q("3 mm")),
    Sketcher.Constraint("DistanceY", 0, 2, 0, 1, Q("1.5 mm")),
    Sketcher.Constraint("DistanceY", 12, 1, 12, 2, Q("14.5 mm")),
])
pad7 = body6.newObject("PartDesign::Pad", "Pad006")
pad7.Profile = sketch10
pad7.Type = "TwoLengths"
pad7.Length = 1
pad7.Length2 = 1

doc.recompute()
